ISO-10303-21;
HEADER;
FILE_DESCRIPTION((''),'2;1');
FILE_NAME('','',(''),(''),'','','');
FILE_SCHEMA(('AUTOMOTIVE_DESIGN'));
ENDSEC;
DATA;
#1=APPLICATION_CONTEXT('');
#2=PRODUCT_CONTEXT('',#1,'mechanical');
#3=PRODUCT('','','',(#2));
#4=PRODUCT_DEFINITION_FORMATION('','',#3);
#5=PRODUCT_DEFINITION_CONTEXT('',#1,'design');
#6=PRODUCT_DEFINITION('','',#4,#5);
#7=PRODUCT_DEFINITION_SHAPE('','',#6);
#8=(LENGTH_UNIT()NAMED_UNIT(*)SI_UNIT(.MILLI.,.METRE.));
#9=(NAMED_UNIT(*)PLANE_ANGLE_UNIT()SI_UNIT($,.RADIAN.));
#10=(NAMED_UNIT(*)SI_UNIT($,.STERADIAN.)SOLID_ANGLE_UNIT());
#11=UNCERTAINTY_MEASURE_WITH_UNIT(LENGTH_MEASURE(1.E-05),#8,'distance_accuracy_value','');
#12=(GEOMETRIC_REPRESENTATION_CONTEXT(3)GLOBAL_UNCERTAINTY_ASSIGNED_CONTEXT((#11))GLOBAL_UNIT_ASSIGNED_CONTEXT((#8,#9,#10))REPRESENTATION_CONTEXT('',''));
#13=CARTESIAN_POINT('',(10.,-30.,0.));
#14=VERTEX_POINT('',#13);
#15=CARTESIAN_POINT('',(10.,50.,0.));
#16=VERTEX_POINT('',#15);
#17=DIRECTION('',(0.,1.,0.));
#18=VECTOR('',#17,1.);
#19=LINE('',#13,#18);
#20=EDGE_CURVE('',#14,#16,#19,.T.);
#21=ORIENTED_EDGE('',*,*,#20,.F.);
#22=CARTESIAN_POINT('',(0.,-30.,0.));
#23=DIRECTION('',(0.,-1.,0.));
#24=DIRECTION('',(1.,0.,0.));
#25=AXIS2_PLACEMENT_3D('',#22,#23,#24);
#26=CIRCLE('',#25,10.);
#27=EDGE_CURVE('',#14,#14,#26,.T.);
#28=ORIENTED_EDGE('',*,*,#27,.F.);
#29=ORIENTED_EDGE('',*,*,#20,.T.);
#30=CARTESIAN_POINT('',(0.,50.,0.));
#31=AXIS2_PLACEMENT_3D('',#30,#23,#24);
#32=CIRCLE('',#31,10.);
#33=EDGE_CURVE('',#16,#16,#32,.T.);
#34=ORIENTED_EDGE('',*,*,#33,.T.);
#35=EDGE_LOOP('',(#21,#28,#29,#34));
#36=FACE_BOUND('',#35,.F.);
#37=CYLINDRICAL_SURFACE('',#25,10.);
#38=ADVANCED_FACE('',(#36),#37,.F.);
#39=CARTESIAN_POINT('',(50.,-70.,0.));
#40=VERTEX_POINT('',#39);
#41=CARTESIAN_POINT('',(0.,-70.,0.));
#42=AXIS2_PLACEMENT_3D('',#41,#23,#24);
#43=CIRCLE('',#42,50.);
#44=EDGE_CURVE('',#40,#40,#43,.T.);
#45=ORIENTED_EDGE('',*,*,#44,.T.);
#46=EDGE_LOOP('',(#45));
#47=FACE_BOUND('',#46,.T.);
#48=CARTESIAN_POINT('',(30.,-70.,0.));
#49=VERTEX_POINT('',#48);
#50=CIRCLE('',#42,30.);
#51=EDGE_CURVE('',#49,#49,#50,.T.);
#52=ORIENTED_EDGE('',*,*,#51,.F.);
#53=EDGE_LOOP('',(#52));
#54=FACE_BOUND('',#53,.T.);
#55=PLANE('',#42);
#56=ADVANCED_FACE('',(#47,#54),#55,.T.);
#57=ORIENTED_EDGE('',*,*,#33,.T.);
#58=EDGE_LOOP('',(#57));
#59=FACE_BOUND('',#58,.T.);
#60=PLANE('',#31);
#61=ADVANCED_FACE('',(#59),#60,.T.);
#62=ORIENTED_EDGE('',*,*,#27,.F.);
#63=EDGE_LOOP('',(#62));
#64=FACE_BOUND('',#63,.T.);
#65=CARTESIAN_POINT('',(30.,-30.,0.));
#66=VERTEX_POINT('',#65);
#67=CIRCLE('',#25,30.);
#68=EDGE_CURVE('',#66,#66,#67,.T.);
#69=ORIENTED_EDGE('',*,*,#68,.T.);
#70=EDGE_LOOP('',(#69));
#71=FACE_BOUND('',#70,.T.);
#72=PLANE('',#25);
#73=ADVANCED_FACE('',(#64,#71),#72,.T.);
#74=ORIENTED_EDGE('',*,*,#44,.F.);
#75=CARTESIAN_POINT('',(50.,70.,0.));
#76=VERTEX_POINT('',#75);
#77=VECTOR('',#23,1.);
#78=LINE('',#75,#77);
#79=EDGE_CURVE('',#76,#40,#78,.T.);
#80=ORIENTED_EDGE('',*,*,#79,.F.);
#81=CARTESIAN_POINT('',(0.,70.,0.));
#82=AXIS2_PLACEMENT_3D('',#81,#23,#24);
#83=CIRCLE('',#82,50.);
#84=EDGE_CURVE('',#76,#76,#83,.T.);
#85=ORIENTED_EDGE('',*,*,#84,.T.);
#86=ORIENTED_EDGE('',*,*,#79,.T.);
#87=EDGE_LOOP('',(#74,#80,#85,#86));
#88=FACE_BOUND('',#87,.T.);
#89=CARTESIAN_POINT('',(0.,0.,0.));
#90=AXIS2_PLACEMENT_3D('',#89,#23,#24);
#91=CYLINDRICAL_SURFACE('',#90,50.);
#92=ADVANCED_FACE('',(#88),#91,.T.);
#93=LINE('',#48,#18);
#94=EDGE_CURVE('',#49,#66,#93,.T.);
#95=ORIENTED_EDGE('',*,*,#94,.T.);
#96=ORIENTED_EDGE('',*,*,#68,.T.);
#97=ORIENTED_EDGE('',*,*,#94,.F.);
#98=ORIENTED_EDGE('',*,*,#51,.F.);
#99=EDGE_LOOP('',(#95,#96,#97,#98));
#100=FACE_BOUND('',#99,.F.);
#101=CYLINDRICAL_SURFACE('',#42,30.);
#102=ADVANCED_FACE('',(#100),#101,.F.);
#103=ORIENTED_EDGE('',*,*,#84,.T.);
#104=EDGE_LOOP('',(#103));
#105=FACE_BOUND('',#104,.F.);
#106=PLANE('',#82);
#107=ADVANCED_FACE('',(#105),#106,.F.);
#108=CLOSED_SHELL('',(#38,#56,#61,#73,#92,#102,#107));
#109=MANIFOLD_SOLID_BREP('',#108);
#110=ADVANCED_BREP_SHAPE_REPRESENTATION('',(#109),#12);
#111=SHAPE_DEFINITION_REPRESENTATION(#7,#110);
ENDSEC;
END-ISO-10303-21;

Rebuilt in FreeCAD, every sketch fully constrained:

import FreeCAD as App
import Part
import Sketcher

doc = App.newDocument("Part")
params = doc.addObject("Spreadsheet::Sheet", "Params")
for row, (alias, value) in enumerate([
    ("sketch1_diameter", "100 mm"),
    ("pad1_length", "140 mm"),
    ("sketch2_diameter", "60 mm"),
    ("pocket1_length", "40 mm"),
    ("sketch3_diameter", "20 mm"),
    ("pocket2_length", "80 mm"),
], start=1):
    params.set(f"A{row}", alias)
    params.set(f"B{row}", "=" + value)
    params.setAlias(f"B{row}", alias)

body = doc.addObject("PartDesign::Body", "Body")

sketch1 = doc.addObject("Sketcher::SketchObject", "Sketch")
body.addObject(sketch1)
sketch1.AttachmentSupport = (doc.XZ_Plane, [""])
sketch1.MapMode = "FlatFace"
sketch1.addGeometry(Part.Circle(App.Vector(0, 0, 0), App.Vector(0, 0, 1), 50), False)
sketch1.addConstraint(Sketcher.Constraint("Coincident", 0, 3, -1, 1))
sketch1.addConstraint(Sketcher.Constraint("Diameter", 0, 100.0))
sketch1.setExpression("Constraints[1]", "Params.sketch1_diameter")
pad1 = doc.addObject("PartDesign::Pad", "Pad")
body.addObject(pad1)
pad1.Profile = sketch1
pad1.setExpression("Length", "Params.pad1_length")
pad1.Midplane = True

sketch2 = doc.addObject("Sketcher::SketchObject", "Sketch001")
body.addObject(sketch2)
sketch2.AttachmentSupport = (doc.XZ_Plane, [""])
sketch2.MapMode = "FlatFace"
sketch2.AttachmentOffset = App.Placement(App.Vector(0, 0, 70), App.Rotation())
sketch2.addGeometry(Part.Circle(App.Vector(0, 0, 0), App.Vector(0, 0, 1), 30), False)
sketch2.addConstraint(Sketcher.Constraint("Coincident", 0, 3, -1, 1))
sketch2.addConstraint(Sketcher.Constraint("Diameter", 0, 60.0))
sketch2.setExpression("Constraints[1]", "Params.sketch2_diameter")
pocket1 = doc.addObject("PartDesign::Pocket", "Pocket")
body.addObject(pocket1)
pocket1.Profile = sketch2
pocket1.setExpression("Length", "Params.pocket1_length")

sketch3 = doc.addObject("Sketcher::SketchObject", "Sketch002")
body.addObject(sketch3)
sketch3.AttachmentSupport = (doc.XZ_Plane, [""])
sketch3.MapMode = "FlatFace"
sketch3.AttachmentOffset = App.Placement(App.Vector(0, 0, 30), App.Rotation())
sketch3.addGeometry(Part.Circle(App.Vector(0, 0, 0), App.Vector(0, 0, 1), 10), False)
sketch3.addConstraint(Sketcher.Constraint("Coincident", 0, 3, -1, 1))
sketch3.addConstraint(Sketcher.Constraint("Diameter", 0, 20.0))
sketch3.setExpression("Constraints[1]", "Params.sketch3_diameter")
pocket2 = doc.addObject("PartDesign::Pocket", "Pocket001")
body.addObject(pocket2)
pocket2.Profile = sketch3
pocket2.setExpression("Length", "Params.pocket2_length")

doc.recompute()
